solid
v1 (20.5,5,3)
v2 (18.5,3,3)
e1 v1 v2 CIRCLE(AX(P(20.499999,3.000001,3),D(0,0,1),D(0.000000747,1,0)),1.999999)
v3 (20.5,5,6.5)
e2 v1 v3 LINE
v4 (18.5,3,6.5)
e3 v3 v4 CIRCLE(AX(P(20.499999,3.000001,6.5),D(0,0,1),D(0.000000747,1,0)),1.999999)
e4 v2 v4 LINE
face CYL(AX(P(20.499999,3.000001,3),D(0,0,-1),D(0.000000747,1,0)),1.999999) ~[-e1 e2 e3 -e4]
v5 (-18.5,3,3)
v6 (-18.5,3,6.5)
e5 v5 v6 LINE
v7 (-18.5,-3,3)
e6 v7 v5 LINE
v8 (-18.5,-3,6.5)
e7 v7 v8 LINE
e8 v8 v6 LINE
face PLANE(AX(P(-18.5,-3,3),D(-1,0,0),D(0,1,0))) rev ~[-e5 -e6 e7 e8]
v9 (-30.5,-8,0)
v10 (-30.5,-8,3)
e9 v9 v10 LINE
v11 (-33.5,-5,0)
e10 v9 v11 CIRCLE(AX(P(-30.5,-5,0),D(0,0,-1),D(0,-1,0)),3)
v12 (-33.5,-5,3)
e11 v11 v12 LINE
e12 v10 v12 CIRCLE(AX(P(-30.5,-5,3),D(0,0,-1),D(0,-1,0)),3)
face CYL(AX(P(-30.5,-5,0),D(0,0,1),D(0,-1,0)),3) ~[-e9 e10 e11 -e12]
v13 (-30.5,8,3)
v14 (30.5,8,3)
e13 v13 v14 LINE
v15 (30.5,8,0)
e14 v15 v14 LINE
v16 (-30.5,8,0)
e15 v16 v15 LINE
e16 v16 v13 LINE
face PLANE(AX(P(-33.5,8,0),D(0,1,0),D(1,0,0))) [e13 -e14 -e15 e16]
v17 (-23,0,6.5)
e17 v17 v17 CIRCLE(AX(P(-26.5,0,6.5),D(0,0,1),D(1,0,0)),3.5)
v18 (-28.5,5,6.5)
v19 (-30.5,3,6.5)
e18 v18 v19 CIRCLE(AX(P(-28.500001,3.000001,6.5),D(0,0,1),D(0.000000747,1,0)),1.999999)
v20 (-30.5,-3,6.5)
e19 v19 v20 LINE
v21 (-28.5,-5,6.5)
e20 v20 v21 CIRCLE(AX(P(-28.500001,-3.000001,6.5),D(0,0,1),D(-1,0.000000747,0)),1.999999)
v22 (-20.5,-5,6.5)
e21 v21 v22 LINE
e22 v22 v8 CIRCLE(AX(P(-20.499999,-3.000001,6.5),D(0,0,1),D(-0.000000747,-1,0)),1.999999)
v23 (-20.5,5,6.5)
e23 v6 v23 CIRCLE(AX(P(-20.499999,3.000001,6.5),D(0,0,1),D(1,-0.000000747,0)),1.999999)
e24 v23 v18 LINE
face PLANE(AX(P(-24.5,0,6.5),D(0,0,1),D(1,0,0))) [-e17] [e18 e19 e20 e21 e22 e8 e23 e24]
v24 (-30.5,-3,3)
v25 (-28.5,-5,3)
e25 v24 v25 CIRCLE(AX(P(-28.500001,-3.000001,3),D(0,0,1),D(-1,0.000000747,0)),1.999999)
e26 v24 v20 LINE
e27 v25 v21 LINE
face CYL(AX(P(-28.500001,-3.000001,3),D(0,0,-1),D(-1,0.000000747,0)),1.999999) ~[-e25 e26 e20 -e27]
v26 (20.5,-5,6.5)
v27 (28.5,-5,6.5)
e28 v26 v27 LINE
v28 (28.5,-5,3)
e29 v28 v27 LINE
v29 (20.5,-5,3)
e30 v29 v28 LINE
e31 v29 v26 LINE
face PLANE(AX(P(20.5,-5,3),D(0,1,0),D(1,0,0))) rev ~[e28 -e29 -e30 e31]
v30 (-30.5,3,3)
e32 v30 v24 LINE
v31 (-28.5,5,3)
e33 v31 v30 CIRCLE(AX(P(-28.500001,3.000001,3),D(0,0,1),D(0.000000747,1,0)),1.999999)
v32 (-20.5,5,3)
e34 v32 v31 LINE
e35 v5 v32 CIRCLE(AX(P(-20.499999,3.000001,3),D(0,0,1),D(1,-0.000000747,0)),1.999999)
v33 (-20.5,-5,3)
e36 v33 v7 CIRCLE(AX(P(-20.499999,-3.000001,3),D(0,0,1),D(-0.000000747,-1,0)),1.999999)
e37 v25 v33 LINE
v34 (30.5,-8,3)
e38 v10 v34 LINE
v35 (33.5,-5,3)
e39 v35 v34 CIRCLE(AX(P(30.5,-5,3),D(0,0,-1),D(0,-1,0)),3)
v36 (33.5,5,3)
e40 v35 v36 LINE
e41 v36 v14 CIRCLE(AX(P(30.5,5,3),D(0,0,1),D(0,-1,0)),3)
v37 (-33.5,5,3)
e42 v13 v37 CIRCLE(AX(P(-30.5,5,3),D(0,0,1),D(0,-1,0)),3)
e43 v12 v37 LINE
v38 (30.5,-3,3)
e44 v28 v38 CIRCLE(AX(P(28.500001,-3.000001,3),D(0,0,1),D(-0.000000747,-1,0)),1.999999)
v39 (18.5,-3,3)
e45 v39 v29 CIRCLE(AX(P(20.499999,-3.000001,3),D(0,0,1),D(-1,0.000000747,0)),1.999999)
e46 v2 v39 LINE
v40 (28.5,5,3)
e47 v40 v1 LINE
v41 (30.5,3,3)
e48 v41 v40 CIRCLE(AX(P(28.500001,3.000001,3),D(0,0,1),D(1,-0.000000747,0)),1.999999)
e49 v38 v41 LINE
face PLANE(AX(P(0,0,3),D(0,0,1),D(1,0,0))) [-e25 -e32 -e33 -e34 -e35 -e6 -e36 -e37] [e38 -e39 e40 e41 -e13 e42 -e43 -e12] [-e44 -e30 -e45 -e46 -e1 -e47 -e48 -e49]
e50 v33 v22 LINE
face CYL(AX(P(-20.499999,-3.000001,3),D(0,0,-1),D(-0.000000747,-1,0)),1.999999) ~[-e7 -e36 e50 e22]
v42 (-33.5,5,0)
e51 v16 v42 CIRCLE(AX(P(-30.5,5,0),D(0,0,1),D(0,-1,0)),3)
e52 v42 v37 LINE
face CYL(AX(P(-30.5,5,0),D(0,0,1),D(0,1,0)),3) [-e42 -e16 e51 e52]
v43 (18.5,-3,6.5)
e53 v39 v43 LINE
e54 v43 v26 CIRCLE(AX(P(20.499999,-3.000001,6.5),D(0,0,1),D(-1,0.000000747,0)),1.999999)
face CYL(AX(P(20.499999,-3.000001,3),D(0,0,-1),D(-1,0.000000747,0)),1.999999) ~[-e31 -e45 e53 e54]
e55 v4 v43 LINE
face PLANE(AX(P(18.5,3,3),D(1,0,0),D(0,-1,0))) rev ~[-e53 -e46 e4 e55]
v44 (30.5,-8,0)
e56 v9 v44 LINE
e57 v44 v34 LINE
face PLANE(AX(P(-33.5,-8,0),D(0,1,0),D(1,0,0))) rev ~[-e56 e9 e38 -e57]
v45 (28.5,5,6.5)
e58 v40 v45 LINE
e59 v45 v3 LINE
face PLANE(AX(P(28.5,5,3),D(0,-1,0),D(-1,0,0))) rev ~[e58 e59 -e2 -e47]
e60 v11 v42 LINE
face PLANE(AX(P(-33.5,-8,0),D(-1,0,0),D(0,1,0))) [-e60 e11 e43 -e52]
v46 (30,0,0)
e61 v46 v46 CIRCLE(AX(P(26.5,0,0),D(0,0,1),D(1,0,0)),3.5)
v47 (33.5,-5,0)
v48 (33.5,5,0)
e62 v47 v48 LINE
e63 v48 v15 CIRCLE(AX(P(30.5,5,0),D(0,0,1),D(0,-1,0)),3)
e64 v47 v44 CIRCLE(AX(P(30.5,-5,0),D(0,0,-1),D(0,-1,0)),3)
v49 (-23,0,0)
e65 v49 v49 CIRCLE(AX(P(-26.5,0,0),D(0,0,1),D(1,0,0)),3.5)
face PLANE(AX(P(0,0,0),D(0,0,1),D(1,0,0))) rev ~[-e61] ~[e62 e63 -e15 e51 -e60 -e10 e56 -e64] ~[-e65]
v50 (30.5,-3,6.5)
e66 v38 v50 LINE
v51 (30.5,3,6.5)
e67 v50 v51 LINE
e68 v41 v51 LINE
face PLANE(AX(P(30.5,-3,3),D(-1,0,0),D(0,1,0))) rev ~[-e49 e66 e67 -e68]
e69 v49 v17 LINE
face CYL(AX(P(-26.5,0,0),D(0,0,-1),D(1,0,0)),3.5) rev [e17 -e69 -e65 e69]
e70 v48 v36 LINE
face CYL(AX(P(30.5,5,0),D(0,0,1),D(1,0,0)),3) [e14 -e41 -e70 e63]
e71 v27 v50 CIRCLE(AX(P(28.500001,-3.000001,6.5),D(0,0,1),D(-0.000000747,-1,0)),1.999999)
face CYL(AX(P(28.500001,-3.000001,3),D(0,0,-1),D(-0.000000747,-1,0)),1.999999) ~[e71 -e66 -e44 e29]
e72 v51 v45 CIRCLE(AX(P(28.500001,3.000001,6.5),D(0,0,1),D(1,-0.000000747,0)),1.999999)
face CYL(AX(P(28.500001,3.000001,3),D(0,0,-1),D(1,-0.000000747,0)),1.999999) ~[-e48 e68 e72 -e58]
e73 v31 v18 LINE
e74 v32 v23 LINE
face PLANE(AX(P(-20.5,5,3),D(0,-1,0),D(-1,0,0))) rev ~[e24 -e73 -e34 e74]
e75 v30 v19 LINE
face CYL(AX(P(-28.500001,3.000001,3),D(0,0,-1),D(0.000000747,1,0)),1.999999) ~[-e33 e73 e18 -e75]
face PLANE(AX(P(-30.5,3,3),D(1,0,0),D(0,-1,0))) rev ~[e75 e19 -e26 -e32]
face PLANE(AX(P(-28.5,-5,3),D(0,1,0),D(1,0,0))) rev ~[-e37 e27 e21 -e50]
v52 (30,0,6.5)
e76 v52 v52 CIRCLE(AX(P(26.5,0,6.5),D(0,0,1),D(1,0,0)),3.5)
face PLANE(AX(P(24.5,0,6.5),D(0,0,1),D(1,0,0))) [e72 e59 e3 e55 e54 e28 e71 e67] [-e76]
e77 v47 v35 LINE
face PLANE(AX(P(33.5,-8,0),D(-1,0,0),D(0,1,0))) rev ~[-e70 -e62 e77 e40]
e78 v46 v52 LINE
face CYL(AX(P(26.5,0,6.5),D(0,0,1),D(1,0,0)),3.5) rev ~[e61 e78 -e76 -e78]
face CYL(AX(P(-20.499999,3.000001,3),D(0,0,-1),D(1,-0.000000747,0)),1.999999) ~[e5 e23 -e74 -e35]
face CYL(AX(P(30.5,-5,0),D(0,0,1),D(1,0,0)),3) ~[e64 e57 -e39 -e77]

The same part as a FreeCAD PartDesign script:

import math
import FreeCAD as App
import Part
import Sketcher
Q = App.Units.Quantity


def edges_at(feature, points):
    """Names of the edges that pass closest to the given points."""
    edges = feature.Shape.Edges
    near = lambda p: min(range(len(edges)), key=lambda i: edges[i].distToShape(Part.Vertex(*p))[0])
    return sorted({f"Edge{near(p) + 1}" for p in points})


def add_polygon(sketch, points):
    """Adds a closed chain of lines whose ends are joined by coincident constraints."""
    first, n = sketch.GeometryCount, len(points)
    for a, b in zip(points, points[1:] + points[:1]):
        sketch.addGeometry(Part.LineSegment(App.Vector(*a, 0), App.Vector(*b, 0)), False)
    for i in range(n):
        sketch.addConstraint(Sketcher.Constraint("Coincident", first + i, 2, first + (i + 1) % n, 1))

doc = App.newDocument("Part")
body = doc.addObject("PartDesign::Body", "Body")

sketch1 = body.newObject("Sketcher::SketchObject", "Sketch")
sketch1.AttachmentSupport = (doc.getObject("XY_Plane"), [""])
sketch1.MapMode = "FlatFace"
add_polygon(sketch1, [(-33.5, 8), (-33.5, -8), (33.5, -8), (33.5, 8)])
sketch1.addGeometry(Part.Circle(App.Vector(-26.5, 0, 0), App.Vector(0, 0, 1), 3.5), False)
sketch1.addGeometry(Part.Circle(App.Vector(26.5, 0, 0), App.Vector(0, 0, 1), 3.5), False)
sketch1.addConstraint([
    Sketcher.Constraint("Vertical", 0),
    Sketcher.Constraint("Horizontal", 1),
    Sketcher.Constraint("Vertical", 2),
    Sketcher.Constraint("Horizontal", 3),
    Sketcher.Constraint("Equal", 4, 5),
    Sketcher.Constraint("Symmetric", 4, 3, 5, 3, -1, 1),
    Sketcher.Constraint("Symmetric", 0, 2, 2, 2, -1, 1),
    Sketcher.Constraint("PointOnObject", 4, 3, -1),
    Sketcher.Constraint("Diameter", 4, Q("7 mm")),
    Sketcher.Constraint("DistanceX", 1, 1, 1, 2, Q("67 mm")),
    Sketcher.Constraint("DistanceY", 0, 2, 0, 1, Q("16 mm")),
    Sketcher.Constraint("DistanceX", 4, 3, 5, 3, Q("53 mm")),
])
pad1 = body.newObject("PartDesign::Pad", "Pad")
pad1.Profile = sketch1
pad1.Length = 3

sketch2 = body.newObject("Sketcher::SketchObject", "Sketch001")
sketch2.AttachmentSupport = (doc.getObject("XY_Plane"), [""])
sketch2.MapMode = "FlatFace"
sketch2.AttachmentOffset = App.Placement(App.Vector(0, 0, 3), App.Rotation())
sketch2.addGeometry([
    Part.LineSegment(App.Vector(20.5, -5, 0), App.Vector(28.5, -5, 0)),
    Part.ArcOfCircle(Part.Circle(App.Vector(28.5, -3, 0), App.Vector(0, 0, 1), 2), math.radians(-90), math.radians(0)),
    Part.LineSegment(App.Vector(30.5, -3, 0), App.Vector(30.5, 3, 0)),
    Part.ArcOfCircle(Part.Circle(App.Vector(28.5, 3, 0), App.Vector(0, 0, 1), 2), math.radians(0), math.radians(90)),
    Part.LineSegment(App.Vector(28.5, 5, 0), App.Vector(20.5, 5, 0)),
    Part.ArcOfCircle(Part.Circle(App.Vector(20.5, 3, 0), App.Vector(0, 0, 1), 2), math.radians(90), math.radians(180)),
    Part.LineSegment(App.Vector(18.5, 3, 0), App.Vector(18.5, -3, 0)),
    Part.ArcOfCircle(Part.Circle(App.Vector(20.5, -3, 0), App.Vector(0, 0, 1), 2), math.radians(180), math.radians(270)),
    Part.LineSegment(App.Vector(-28.5, -5, 0), App.Vector(-20.5, -5, 0)),
    Part.ArcOfCircle(Part.Circle(App.Vector(-20.5, -3, 0), App.Vector(0, 0, 1), 2), math.radians(-90), math.radians(0)),
    Part.LineSegment(App.Vector(-18.5, -3, 0), App.Vector(-18.5, 3, 0)),
    Part.ArcOfCircle(Part.Circle(App.Vector(-20.5, 3, 0), App.Vector(0, 0, 1), 2), math.radians(0), math.radians(90)),
    Part.LineSegment(App.Vector(-20.5, 5, 0), App.Vector(-28.5, 5, 0)),
    Part.ArcOfCircle(Part.Circle(App.Vector(-28.5, 3, 0), App.Vector(0, 0, 1), 2), math.radians(90), math.radians(180)),
    Part.LineSegment(App.Vector(-30.5, 3, 0), App.Vector(-30.5, -3, 0)),
    Part.ArcOfCircle(Part.Circle(App.Vector(-28.5, -3, 0), App.Vector(0, 0, 1), 2), math.radians(180), math.radians(270)),
], False)
sketch2.addConstraint([
    Sketcher.Constraint("Tangent", 0, 2, 1, 1),
    Sketcher.Constraint("Tangent", 1, 2, 2, 1),
    Sketcher.Constraint("Tangent", 2, 2, 3, 1),
    Sketcher.Constraint("Tangent", 3, 2, 4, 1),
    Sketcher.Constraint("Tangent", 4, 2, 5, 1),
    Sketcher.Constraint("Tangent", 5, 2, 6, 1),
    Sketcher.Constraint("Tangent", 6, 2, 7, 1),
    Sketcher.Constraint("Tangent", 7, 2, 0, 1),
    Sketcher.Constraint("Tangent", 8, 2, 9, 1),
    Sketcher.Constraint("Tangent", 9, 2, 10, 1),
    Sketcher.Constraint("Tangent", 10, 2, 11, 1),
    Sketcher.Constraint("Tangent", 11, 2, 12, 1),
    Sketcher.Constraint("Tangent", 12, 2, 13, 1),
    Sketcher.Constraint("Tangent", 13, 2, 14, 1),
    Sketcher.Constraint("Tangent", 14, 2, 15, 1),
    Sketcher.Constraint("Tangent", 15, 2, 8, 1),
    Sketcher.Constraint("Horizontal", 0),
    Sketcher.Constraint("Vertical", 2),
    Sketcher.Constraint("Horizontal", 4),
    Sketcher.Constraint("Vertical", 6),
    Sketcher.Constraint("Horizontal", 8),
    Sketcher.Constraint("Vertical", 10),
    Sketcher.Constraint("Horizontal", 12),
    Sketcher.Constraint("Vertical", 14),
    Sketcher.Constraint("Equal", 1, 3),
    Sketcher.Constraint("Equal", 3, 5),
    Sketcher.Constraint("Equal", 5, 7),
    Sketcher.Constraint("Equal", 7, 9),
    Sketcher.Constraint("Equal", 9, 11),
    Sketcher.Constraint("Equal", 11, 13),
    Sketcher.Constraint("Equal", 13, 15),
    Sketcher.Constraint("Symmetric", 5, 3, 9, 3, -1, 1),
    Sketcher.Constraint("Symmetric", 1, 3, 13, 3, -1, 1),
    Sketcher.Constraint("Horizontal", 7, 3, 9, 3),
    Sketcher.Constraint("Radius", 1, Q("1.999999 mm")),
    Sketcher.Constraint("DistanceX", 0, 1, 0, 2, Q("8 mm")),
    Sketcher.Constraint("DistanceY", 2, 1, 2, 2, Q("6 mm")),
    Sketcher.Constraint("DistanceX", 9, 3, 1, 3, Q("49 mm")),
])
pad2 = body.newObject("PartDesign::Pad", "Pad001")
pad2.Profile = sketch2
pad2.Length = 3.5

sketch3 = body.newObject("Sketcher::SketchObject", "Sketch002")
sketch3.AttachmentSupport = (doc.getObject("XY_Plane"), [""])
sketch3.MapMode = "FlatFace"
sketch3.AttachmentOffset = App.Placement(App.Vector(0, 0, 6.5), App.Rotation())
sketch3.addGeometry([
    Part.Circle(App.Vector(26.5, 0, 0), App.Vector(0, 0, 1), 3.5),
    Part.Circle(App.Vector(-26.5, 0, 0), App.Vector(0, 0, 1), 3.5),
], False)
sketch3.addConstraint([
    Sketcher.Constraint("Equal", 0, 1),
    Sketcher.Constraint("Symmetric", 0, 3, 1, 3, -1, 1),
    Sketcher.Constraint("PointOnObject", 0, 3, -1),
    Sketcher.Constraint("Diameter", 0, Q("7 mm")),
    Sketcher.Constraint("DistanceX", 1, 3, 0, 3, Q("53 mm")),
])
pocket1 = body.newObject("PartDesign::Pocket", "Pocket")
pocket1.Profile = sketch3
pocket1.Type = "ThroughAll"
doc.recompute()

fillet = body.newObject("PartDesign::Fillet", "Fillet")
fillet.Base = (pocket1, edges_at(pocket1, [
    (-33.5, 8, 1.5),
    (33.5, 8, 1.5),
    (33.5, -8, 1.5),
    (-33.5, -8, 1.5),
]))
fillet.Radius = 3

doc.recompute()
